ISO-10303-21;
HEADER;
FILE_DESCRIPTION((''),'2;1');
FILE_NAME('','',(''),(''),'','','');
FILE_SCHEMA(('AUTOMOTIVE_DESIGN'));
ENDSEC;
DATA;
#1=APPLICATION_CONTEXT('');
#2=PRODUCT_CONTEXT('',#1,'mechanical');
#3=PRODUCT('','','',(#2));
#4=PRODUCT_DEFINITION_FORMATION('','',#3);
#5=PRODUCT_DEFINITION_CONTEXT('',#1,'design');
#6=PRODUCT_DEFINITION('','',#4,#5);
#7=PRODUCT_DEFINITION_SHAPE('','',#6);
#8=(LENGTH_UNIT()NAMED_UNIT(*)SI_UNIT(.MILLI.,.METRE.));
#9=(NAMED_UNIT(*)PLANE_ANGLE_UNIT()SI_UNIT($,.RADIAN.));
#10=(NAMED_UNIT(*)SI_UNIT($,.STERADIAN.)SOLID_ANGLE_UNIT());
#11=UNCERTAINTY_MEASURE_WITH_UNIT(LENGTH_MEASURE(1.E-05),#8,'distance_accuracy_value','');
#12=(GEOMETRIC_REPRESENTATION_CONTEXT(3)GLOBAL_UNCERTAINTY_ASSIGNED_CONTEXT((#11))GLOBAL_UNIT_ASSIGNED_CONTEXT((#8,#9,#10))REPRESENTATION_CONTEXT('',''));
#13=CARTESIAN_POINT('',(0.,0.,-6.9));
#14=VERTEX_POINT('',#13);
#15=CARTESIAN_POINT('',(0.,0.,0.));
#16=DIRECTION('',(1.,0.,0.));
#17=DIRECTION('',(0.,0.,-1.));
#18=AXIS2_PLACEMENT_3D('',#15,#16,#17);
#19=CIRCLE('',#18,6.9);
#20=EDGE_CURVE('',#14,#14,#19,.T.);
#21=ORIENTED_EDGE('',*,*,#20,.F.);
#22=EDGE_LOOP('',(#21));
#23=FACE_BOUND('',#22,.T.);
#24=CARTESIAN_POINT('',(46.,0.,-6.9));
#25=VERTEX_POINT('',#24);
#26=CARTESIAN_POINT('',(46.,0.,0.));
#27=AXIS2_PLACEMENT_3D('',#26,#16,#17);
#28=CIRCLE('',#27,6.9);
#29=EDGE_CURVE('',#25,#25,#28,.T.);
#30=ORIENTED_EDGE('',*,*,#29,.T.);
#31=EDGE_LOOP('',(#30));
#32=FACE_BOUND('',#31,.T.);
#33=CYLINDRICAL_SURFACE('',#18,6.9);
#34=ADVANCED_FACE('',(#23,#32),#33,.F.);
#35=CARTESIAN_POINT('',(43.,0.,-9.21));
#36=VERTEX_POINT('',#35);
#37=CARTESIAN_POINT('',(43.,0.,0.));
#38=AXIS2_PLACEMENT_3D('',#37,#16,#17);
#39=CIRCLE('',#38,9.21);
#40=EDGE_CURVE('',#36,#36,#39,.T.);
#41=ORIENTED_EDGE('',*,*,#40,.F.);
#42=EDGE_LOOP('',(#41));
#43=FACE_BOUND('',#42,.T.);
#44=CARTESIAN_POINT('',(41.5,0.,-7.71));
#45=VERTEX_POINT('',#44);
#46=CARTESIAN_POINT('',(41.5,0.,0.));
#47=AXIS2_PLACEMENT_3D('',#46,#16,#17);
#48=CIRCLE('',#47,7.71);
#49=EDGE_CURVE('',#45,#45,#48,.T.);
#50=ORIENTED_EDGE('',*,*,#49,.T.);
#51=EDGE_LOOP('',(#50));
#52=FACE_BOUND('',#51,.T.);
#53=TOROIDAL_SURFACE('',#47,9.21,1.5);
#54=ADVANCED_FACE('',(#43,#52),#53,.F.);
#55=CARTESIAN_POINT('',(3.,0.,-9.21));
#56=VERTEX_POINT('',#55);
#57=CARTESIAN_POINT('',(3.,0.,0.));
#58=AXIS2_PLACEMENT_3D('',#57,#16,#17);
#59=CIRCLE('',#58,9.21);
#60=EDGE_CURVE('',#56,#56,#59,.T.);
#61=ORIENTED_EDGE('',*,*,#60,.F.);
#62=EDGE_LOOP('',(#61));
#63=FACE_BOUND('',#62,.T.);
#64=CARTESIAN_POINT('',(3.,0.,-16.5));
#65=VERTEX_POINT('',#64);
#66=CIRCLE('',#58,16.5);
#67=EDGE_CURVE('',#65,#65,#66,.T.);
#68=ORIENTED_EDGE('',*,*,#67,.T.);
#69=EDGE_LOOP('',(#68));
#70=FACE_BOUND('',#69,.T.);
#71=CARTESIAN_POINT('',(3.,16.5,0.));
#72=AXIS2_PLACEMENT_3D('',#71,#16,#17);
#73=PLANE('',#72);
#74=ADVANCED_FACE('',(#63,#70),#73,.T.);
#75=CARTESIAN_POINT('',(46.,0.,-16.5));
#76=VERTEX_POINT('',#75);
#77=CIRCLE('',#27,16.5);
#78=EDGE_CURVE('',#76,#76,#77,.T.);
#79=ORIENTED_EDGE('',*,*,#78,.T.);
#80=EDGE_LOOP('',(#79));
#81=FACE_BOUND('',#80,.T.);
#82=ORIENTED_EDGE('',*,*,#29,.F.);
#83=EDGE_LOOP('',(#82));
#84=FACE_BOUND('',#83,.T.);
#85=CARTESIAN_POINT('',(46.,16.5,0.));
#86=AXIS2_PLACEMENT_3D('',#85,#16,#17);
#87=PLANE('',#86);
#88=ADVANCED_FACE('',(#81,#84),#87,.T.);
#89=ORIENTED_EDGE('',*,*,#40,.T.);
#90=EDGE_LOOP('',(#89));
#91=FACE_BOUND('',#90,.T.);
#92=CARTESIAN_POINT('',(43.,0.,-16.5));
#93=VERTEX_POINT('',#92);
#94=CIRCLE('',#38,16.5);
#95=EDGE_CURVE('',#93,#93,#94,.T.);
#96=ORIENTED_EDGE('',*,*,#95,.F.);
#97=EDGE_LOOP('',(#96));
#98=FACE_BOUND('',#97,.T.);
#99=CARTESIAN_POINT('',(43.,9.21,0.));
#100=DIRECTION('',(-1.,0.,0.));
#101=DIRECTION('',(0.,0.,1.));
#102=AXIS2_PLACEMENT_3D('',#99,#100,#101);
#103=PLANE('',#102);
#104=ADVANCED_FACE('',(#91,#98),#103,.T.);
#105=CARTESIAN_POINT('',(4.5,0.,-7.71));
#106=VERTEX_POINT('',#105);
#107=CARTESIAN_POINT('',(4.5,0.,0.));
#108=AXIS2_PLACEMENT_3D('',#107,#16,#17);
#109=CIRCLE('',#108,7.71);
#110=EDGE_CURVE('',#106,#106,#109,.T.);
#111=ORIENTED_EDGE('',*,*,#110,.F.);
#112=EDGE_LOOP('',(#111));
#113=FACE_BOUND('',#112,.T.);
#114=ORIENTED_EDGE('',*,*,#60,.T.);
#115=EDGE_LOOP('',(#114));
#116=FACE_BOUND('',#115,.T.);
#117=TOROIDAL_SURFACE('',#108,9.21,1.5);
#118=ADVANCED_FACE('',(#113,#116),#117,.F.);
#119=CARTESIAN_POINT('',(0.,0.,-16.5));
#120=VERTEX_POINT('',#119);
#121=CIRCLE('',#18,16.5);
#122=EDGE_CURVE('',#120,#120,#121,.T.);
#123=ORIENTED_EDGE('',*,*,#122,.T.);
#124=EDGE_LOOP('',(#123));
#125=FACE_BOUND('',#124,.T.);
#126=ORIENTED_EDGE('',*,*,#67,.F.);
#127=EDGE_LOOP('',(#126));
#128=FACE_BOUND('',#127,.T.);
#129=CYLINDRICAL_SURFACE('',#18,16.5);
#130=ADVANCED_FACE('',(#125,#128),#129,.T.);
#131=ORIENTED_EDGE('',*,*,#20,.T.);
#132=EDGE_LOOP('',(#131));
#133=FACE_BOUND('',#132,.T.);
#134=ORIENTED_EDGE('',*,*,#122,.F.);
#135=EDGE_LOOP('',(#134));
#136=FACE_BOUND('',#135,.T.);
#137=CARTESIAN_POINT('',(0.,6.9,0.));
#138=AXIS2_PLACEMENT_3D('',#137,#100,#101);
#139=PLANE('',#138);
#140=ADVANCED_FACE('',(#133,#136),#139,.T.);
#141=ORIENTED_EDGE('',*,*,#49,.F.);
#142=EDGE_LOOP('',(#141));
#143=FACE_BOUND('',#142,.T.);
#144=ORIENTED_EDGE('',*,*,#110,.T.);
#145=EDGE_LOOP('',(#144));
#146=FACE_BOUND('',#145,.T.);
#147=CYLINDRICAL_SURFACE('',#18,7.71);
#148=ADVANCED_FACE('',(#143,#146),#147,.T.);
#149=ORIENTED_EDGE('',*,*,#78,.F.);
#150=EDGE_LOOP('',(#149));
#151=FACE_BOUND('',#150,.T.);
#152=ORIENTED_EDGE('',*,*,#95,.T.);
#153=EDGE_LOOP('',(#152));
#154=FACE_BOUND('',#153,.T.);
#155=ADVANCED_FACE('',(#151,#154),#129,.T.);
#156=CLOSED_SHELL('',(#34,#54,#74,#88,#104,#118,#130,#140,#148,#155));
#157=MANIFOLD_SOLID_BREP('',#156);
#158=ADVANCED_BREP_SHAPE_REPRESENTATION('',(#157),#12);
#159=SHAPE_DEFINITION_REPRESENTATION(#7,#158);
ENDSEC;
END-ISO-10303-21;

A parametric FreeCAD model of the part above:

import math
import FreeCAD as App
import Part
import Sketcher

doc = App.newDocument("Part")
params = doc.addObject("Spreadsheet::Sheet", "Params")
for row, (alias, value) in enumerate([
    ("sketch1_radius", "1.5 mm"),
    ("sketch1_width", "46 mm"),
    ("sketch1_width2", "3 mm"),
    ("sketch1_height", "9.6 mm"),
    ("sketch1_height2", "7.29 mm"),
    ("revolution_angle", "360 deg"),
], start=1):
    params.set(f"A{row}", alias)
    params.set(f"B{row}", "=" + value)
    params.setAlias(f"B{row}", alias)

body = doc.addObject("PartDesign::Body", "Body")

# Sketch on XY plane
sketch1 = body.newObject("Sketcher::SketchObject", "Sketch")
sketch1.AttachmentSupport = (doc.getObject("XY_Plane"), [""])
sketch1.MapMode = "FlatFace"
sketch1.addGeometry(Part.LineSegment(App.Vector(0, 16.5, 0), App.Vector(0, 6.9, 0)), False)
sketch1.addGeometry(Part.LineSegment(App.Vector(0, 6.9, 0), App.Vector(46, 6.9, 0)), False)
sketch1.addGeometry(Part.LineSegment(App.Vector(46, 6.9, 0), App.Vector(46, 16.5, 0)), False)
sketch1.addGeometry(Part.LineSegment(App.Vector(46, 16.5, 0), App.Vector(43, 16.5, 0)), False)
sketch1.addGeometry(Part.LineSegment(App.Vector(43, 16.5, 0), App.Vector(43, 9.21, 0)), False)
sketch1.addGeometry(Part.ArcOfCircle(Part.Circle(App.Vector(41.5, 9.21, 0), App.Vector(0, 0, 1), 1.5), math.radians(-90), math.radians(0)), False)
sketch1.addGeometry(Part.LineSegment(App.Vector(41.5, 7.71, 0), App.Vector(4.5, 7.71, 0)), False)
sketch1.addGeometry(Part.ArcOfCircle(Part.Circle(App.Vector(4.5, 9.21, 0), App.Vector(0, 0, 1), 1.5), math.radians(180), math.radians(270)), False)
sketch1.addGeometry(Part.LineSegment(App.Vector(3, 9.21, 0), App.Vector(3, 16.5, 0)), False)
sketch1.addGeometry(Part.LineSegment(App.Vector(3, 16.5, 0), App.Vector(0, 16.5, 0)), False)
sketch1.addConstraint(Sketcher.Constraint("Coincident", 0, 2, 1, 1))
sketch1.addConstraint(Sketcher.Constraint("Coincident", 1, 2, 2, 1))
sketch1.addConstraint(Sketcher.Constraint("Coincident", 2, 2, 3, 1))
sketch1.addConstraint(Sketcher.Constraint("Coincident", 3, 2, 4, 1))
sketch1.addConstraint(Sketcher.Constraint("Tangent", 4, 2, 5, 2))
sketch1.addConstraint(Sketcher.Constraint("Tangent", 5, 1, 6, 1))
sketch1.addConstraint(Sketcher.Constraint("Tangent", 6, 2, 7, 2))
sketch1.addConstraint(Sketcher.Constraint("Tangent", 7, 1, 8, 1))
sketch1.addConstraint(Sketcher.Constraint("Coincident", 8, 2, 9, 1))
sketch1.addConstraint(Sketcher.Constraint("Coincident", 9, 2, 0, 1))
sketch1.addConstraint(Sketcher.Constraint("Vertical", 0))
sketch1.addConstraint(Sketcher.Constraint("Horizontal", 1))
sketch1.addConstraint(Sketcher.Constraint("Vertical", 2))
sketch1.addConstraint(Sketcher.Constraint("Horizontal", 3))
sketch1.addConstraint(Sketcher.Constraint("Vertical", 4))
sketch1.addConstraint(Sketcher.Constraint("Horizontal", 6))
sketch1.addConstraint(Sketcher.Constraint("Vertical", 8))
sketch1.addConstraint(Sketcher.Constraint("Horizontal", 9))
sketch1.addConstraint(Sketcher.Constraint("Equal", 5, 7))
sketch1.addConstraint(Sketcher.Constraint("PointOnObject", 0, 2, -2))
sketch1.addConstraint(Sketcher.Constraint("Horizontal", 3, 2, 8, 2))
sketch1.addConstraint(Sketcher.Constraint("Equal", 3, 9))
sketch1.addConstraint(Sketcher.Constraint("Radius", 5, 1.5))
sketch1.addConstraint(Sketcher.Constraint("DistanceX", 1, 1, 1, 2, 46.0))
sketch1.addConstraint(Sketcher.Constraint("DistanceX", 3, 2, 3, 1, 3.0))
sketch1.addConstraint(Sketcher.Constraint("DistanceY", 0, 2, 0, 1, 9.6))
sketch1.addConstraint(Sketcher.Constraint("DistanceY", 4, 2, 4, 1, 7.29))
sketch1.addConstraint(Sketcher.Constraint("DistanceY", -1, 1, 0, 2, 6.9))
sketch1.setExpression("Constraints[22]", "Params.sketch1_radius")
sketch1.setExpression("Constraints[23]", "Params.sketch1_width")
sketch1.setExpression("Constraints[24]", "Params.sketch1_width2")
sketch1.setExpression("Constraints[25]", "Params.sketch1_height")
sketch1.setExpression("Constraints[26]", "Params.sketch1_height2")
revolution = body.newObject("PartDesign::Revolution", "Revolution")
revolution.Profile = sketch1
revolution.ReferenceAxis = (sketch1, ["H_Axis"])
revolution.setExpression("Angle", "Params.revolution_angle")

doc.recompute()
